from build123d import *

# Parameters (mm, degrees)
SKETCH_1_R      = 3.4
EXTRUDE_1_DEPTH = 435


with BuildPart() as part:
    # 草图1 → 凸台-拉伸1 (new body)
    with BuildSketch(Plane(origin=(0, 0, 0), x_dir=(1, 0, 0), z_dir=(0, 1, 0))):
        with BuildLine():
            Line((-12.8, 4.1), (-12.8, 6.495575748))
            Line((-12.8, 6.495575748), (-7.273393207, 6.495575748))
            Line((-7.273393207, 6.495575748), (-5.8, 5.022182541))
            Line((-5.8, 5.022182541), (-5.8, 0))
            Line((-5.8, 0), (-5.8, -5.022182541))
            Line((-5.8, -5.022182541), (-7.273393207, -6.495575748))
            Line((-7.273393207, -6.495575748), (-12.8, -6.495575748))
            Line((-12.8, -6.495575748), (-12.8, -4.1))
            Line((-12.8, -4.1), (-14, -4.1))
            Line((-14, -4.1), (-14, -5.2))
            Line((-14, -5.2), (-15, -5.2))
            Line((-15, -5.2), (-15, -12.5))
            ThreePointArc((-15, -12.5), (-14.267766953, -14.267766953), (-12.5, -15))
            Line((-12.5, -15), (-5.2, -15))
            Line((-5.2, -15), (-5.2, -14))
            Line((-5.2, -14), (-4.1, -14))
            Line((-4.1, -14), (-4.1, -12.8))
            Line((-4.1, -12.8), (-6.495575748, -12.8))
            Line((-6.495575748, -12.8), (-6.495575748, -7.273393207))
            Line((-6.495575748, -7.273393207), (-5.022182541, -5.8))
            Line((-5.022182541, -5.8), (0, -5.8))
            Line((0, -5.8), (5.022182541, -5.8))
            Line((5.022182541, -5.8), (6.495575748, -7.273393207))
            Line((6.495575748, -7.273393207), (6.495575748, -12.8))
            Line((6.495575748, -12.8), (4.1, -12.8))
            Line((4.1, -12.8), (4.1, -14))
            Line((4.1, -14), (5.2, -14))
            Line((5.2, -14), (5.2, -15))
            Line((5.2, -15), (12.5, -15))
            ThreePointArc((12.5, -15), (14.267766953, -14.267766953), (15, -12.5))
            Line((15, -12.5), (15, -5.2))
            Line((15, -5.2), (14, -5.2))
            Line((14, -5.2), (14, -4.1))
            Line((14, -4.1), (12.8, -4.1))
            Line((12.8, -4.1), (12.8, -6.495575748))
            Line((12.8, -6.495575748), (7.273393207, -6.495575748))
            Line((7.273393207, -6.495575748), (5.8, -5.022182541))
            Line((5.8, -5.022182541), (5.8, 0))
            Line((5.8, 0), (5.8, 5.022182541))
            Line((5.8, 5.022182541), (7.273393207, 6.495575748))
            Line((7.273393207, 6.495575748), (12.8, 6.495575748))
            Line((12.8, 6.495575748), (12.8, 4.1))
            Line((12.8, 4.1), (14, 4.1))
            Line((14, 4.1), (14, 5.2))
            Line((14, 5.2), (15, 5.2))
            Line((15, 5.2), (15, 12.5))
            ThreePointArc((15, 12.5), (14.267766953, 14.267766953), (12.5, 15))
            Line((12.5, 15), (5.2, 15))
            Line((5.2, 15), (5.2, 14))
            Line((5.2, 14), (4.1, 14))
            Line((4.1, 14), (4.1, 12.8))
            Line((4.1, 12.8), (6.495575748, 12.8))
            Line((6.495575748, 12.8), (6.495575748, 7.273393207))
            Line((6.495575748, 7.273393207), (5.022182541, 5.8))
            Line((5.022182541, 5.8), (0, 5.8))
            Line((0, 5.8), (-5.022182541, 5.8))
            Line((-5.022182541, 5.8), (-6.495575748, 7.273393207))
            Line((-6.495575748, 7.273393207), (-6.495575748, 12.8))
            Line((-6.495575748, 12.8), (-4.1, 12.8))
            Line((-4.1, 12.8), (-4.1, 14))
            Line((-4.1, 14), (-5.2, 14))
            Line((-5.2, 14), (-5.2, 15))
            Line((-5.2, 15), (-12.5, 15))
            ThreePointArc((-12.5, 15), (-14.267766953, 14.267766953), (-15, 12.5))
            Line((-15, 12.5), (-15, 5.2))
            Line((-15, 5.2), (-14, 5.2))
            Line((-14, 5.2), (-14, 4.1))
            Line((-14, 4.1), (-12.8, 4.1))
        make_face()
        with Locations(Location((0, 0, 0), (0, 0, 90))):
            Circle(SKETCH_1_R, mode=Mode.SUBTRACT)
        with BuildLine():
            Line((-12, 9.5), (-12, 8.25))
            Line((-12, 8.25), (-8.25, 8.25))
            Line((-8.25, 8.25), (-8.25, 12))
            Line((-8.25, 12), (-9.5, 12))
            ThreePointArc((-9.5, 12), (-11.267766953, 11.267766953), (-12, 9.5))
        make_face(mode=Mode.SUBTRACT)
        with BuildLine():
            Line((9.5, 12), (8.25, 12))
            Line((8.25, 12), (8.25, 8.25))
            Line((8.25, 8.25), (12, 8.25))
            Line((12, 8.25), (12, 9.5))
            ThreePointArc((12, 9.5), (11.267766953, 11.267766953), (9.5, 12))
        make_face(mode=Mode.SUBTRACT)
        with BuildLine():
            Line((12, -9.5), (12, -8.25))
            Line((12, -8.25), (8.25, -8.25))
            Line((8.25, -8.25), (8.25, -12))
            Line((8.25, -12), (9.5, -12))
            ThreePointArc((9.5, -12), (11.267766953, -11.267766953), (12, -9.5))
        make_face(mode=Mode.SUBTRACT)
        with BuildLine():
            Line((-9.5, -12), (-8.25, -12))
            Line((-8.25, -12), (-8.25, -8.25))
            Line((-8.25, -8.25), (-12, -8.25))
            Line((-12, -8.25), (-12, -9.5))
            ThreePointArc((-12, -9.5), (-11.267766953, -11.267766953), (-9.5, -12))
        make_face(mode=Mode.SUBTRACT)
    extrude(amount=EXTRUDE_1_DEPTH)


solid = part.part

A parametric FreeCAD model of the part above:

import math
import FreeCAD as App
import Part
import Sketcher
Q = App.Units.Quantity

doc = App.newDocument("Part")
body = doc.addObject("PartDesign::Body", "Body")

sketch1 = body.newObject("Sketcher::SketchObject", "Sketch")
sketch1.AttachmentSupport = (doc.getObject("XZ_Plane"), [""])
sketch1.MapMode = "FlatFace"
sketch1.addGeometry([
    Part.LineSegment(App.Vector(-12.8, -4.1, 0), App.Vector(-12.8, -6.5, 0)),
    Part.LineSegment(App.Vector(-12.8, -6.5, 0), App.Vector(-7.3, -6.5, 0)),
    Part.LineSegment(App.Vector(-7.3, -6.5, 0), App.Vector(-5.8, -5, 0)),
    Part.LineSegment(App.Vector(-5.8, -5, 0), App.Vector(-5.8, 5, 0)),
    Part.LineSegment(App.Vector(-5.8, 5, 0), App.Vector(-7.3, 6.5, 0)),
    Part.LineSegment(App.Vector(-7.3, 6.5, 0), App.Vector(-12.8, 6.5, 0)),
    Part.LineSegment(App.Vector(-12.8, 6.5, 0), App.Vector(-12.8, 4.1, 0)),
    Part.LineSegment(App.Vector(-12.8, 4.1, 0), App.Vector(-14, 4.1, 0)),
    Part.LineSegment(App.Vector(-14, 4.1, 0), App.Vector(-14, 5.2, 0)),
    Part.LineSegment(App.Vector(-14, 5.2, 0), App.Vector(-15, 5.2, 0)),
    Part.LineSegment(App.Vector(-15, 5.2, 0), App.Vector(-15, 12.5, 0)),
    Part.ArcOfCircle(Part.Circle(App.Vector(-12.5, 12.5, 0), App.Vector(0, 0, 1), 2.5), math.radians(90), math.radians(180)),
    Part.LineSegment(App.Vector(-12.5, 15, 0), App.Vector(-5.2, 15, 0)),
    Part.LineSegment(App.Vector(-5.2, 15, 0), App.Vector(-5.2, 14, 0)),
    Part.LineSegment(App.Vector(-5.2, 14, 0), App.Vector(-4.1, 14, 0)),
    Part.LineSegment(App.Vector(-4.1, 14, 0), App.Vector(-4.1, 12.8, 0)),
    Part.LineSegment(App.Vector(-4.1, 12.8, 0), App.Vector(-6.5, 12.8, 0)),
    Part.LineSegment(App.Vector(-6.5, 12.8, 0), App.Vector(-6.5, 7.3, 0)),
    Part.LineSegment(App.Vector(-6.5, 7.3, 0), App.Vector(-5, 5.8, 0)),
    Part.LineSegment(App.Vector(-5, 5.8, 0), App.Vector(5, 5.8, 0)),
    Part.LineSegment(App.Vector(5, 5.8, 0), App.Vector(6.5, 7.3, 0)),
    Part.LineSegment(App.Vector(6.5, 7.3, 0), App.Vector(6.5, 12.8, 0)),
    Part.LineSegment(App.Vector(6.5, 12.8, 0), App.Vector(4.1, 12.8, 0)),
    Part.LineSegment(App.Vector(4.1, 12.8, 0), App.Vector(4.1, 14, 0)),
    Part.LineSegment(App.Vector(4.1, 14, 0), App.Vector(5.2, 14, 0)),
    Part.LineSegment(App.Vector(5.2, 14, 0), App.Vector(5.2, 15, 0)),
    Part.LineSegment(App.Vector(5.2, 15, 0), App.Vector(12.5, 15, 0)),
    Part.ArcOfCircle(Part.Circle(App.Vector(12.5, 12.5, 0), App.Vector(0, 0, 1), 2.5), math.radians(0), math.radians(90)),
    Part.LineSegment(App.Vector(15, 12.5, 0), App.Vector(15, 5.2, 0)),
    Part.LineSegment(App.Vector(15, 5.2, 0), App.Vector(14, 5.2, 0)),
    Part.LineSegment(App.Vector(14, 5.2, 0), App.Vector(14, 4.1, 0)),
    Part.LineSegment(App.Vector(14, 4.1, 0), App.Vector(12.8, 4.1, 0)),
    Part.LineSegment(App.Vector(12.8, 4.1, 0), App.Vector(12.8, 6.5, 0)),
    Part.LineSegment(App.Vector(12.8, 6.5, 0), App.Vector(7.3, 6.5, 0)),
    Part.LineSegment(App.Vector(7.3, 6.5, 0), App.Vector(5.8, 5, 0)),
    Part.LineSegment(App.Vector(5.8, 5, 0), App.Vector(5.8, -5, 0)),
    Part.LineSegment(App.Vector(5.8, -5, 0), App.Vector(7.3, -6.5, 0)),
    Part.LineSegment(App.Vector(7.3, -6.5, 0), App.Vector(12.8, -6.5, 0)),
    Part.LineSegment(App.Vector(12.8, -6.5, 0), App.Vector(12.8, -4.1, 0)),
    Part.LineSegment(App.Vector(12.8, -4.1, 0), App.Vector(14, -4.1, 0)),
    Part.LineSegment(App.Vector(14, -4.1, 0), App.Vector(14, -5.2, 0)),
    Part.LineSegment(App.Vector(14, -5.2, 0), App.Vector(15, -5.2, 0)),
    Part.LineSegment(App.Vector(15, -5.2, 0), App.Vector(15, -12.5, 0)),
    Part.ArcOfCircle(Part.Circle(App.Vector(12.5, -12.5, 0), App.Vector(0, 0, 1), 2.5), math.radians(-90), math.radians(0)),
    Part.LineSegment(App.Vector(12.5, -15, 0), App.Vector(5.2, -15, 0)),
    Part.LineSegment(App.Vector(5.2, -15, 0), App.Vector(5.2, -14, 0)),
    Part.LineSegment(App.Vector(5.2, -14, 0), App.Vector(4.1, -14, 0)),
    Part.LineSegment(App.Vector(4.1, -14, 0), App.Vector(4.1, -12.8, 0)),
    Part.LineSegment(App.Vector(4.1, -12.8, 0), App.Vector(6.5, -12.8, 0)),
    Part.LineSegment(App.Vector(6.5, -12.8, 0), App.Vector(6.5, -7.3, 0)),
    Part.LineSegment(App.Vector(6.5, -7.3, 0), App.Vector(5, -5.8, 0)),
    Part.LineSegment(App.Vector(5, -5.8, 0), App.Vector(-5, -5.8, 0)),
    Part.LineSegment(App.Vector(-5, -5.8, 0), App.Vector(-6.5, -7.3, 0)),
    Part.LineSegment(App.Vector(-6.5, -7.3, 0), App.Vector(-6.5, -12.8, 0)),
    Part.LineSegment(App.Vector(-6.5, -12.8, 0), App.Vector(-4.1, -12.8, 0)),
    Part.LineSegment(App.Vector(-4.1, -12.8, 0), App.Vector(-4.1, -14, 0)),
    Part.LineSegment(App.Vector(-4.1, -14, 0), App.Vector(-5.2, -14, 0)),
    Part.LineSegment(App.Vector(-5.2, -14, 0), App.Vector(-5.2, -15, 0)),
    Part.LineSegment(App.Vector(-5.2, -15, 0), App.Vector(-12.5, -15, 0)),
    Part.ArcOfCircle(Part.Circle(App.Vector(-12.5, -12.5, 0), App.Vector(0, 0, 1), 2.5), math.radians(180), math.radians(270)),
    Part.LineSegment(App.Vector(-15, -12.5, 0), App.Vector(-15, -5.2, 0)),
    Part.LineSegment(App.Vector(-15, -5.2, 0), App.Vector(-14, -5.2, 0)),
    Part.LineSegment(App.Vector(-14, -5.2, 0), App.Vector(-14, -4.1, 0)),
    Part.LineSegment(App.Vector(-14, -4.1, 0), App.Vector(-12.8, -4.1, 0)),
    Part.LineSegment(App.Vector(-8.2, 12, 0), App.Vector(-9.5, 12, 0)),
    Part.ArcOfCircle(Part.Circle(App.Vector(-9.5, 9.5, 0), App.Vector(0, 0, 1), 2.5), math.radians(90), math.radians(180)),
    Part.LineSegment(App.Vector(-12, 9.5, 0), App.Vector(-12, 8.2, 0)),
    Part.LineSegment(App.Vector(-12, 8.2, 0), App.Vector(-8.2, 8.2, 0)),
    Part.LineSegment(App.Vector(-8.2, 8.2, 0), App.Vector(-8.2, 12, 0)),
    Part.LineSegment(App.Vector(12, 8.2, 0), App.Vector(12, 9.5, 0)),
    Part.ArcOfCircle(Part.Circle(App.Vector(9.5, 9.5, 0), App.Vector(0, 0, 1), 2.5), math.radians(0), math.radians(90)),
    Part.LineSegment(App.Vector(9.5, 12, 0), App.Vector(8.2, 12, 0)),
    Part.LineSegment(App.Vector(8.2, 12, 0), App.Vector(8.2, 8.2, 0)),
    Part.LineSegment(App.Vector(8.2, 8.2, 0), App.Vector(12, 8.2, 0)),
    Part.LineSegment(App.Vector(-12, -8.2, 0), App.Vector(-12, -9.5, 0)),
    Part.ArcOfCircle(Part.Circle(App.Vector(-9.5, -9.5, 0), App.Vector(0, 0, 1), 2.5), math.radians(180), math.radians(270)),
    Part.LineSegment(App.Vector(-9.5, -12, 0), App.Vector(-8.2, -12, 0)),
    Part.LineSegment(App.Vector(-8.2, -12, 0), App.Vector(-8.2, -8.2, 0)),
    Part.LineSegment(App.Vector(-8.2, -8.2, 0), App.Vector(-12, -8.2, 0)),
    Part.Circle(App.Vector(0, 0, 0), App.Vector(0, 0, 1), 3.4),
    Part.LineSegment(App.Vector(8.2, -12, 0), App.Vector(9.5, -12, 0)),
    Part.ArcOfCircle(Part.Circle(App.Vector(9.5, -9.5, 0), App.Vector(0, 0, 1), 2.5), math.radians(-90), math.radians(0)),
    Part.LineSegment(App.Vector(12, -9.5, 0), App.Vector(12, -8.2, 0)),
    Part.LineSegment(App.Vector(12, -8.2, 0), App.Vector(8.2, -8.2, 0)),
    Part.LineSegment(App.Vector(8.2, -8.2, 0), App.Vector(8.2, -12, 0)),
], False)
sketch1.addConstraint([
    Sketcher.Constraint("Coincident", 0, 2, 1, 1),
    Sketcher.Constraint("Coincident", 1, 2, 2, 1),
    Sketcher.Constraint("Coincident", 2, 2, 3, 1),
    Sketcher.Constraint("Coincident", 3, 2, 4, 1),
    Sketcher.Constraint("Coincident", 4, 2, 5, 1),
    Sketcher.Constraint("Coincident", 5, 2, 6, 1),
    Sketcher.Constraint("Coincident", 6, 2, 7, 1),
    Sketcher.Constraint("Coincident", 7, 2, 8, 1),
    Sketcher.Constraint("Coincident", 8, 2, 9, 1),
    Sketcher.Constraint("Coincident", 9, 2, 10, 1),
    Sketcher.Constraint("Tangent", 10, 2, 11, 2),
    Sketcher.Constraint("Tangent", 11, 1, 12, 1),
    Sketcher.Constraint("Coincident", 12, 2, 13, 1),
    Sketcher.Constraint("Coincident", 13, 2, 14, 1),
    Sketcher.Constraint("Coincident", 14, 2, 15, 1),
    Sketcher.Constraint("Coincident", 15, 2, 16, 1),
    Sketcher.Constraint("Coincident", 16, 2, 17, 1),
    Sketcher.Constraint("Coincident", 17, 2, 18, 1),
    Sketcher.Constraint("Coincident", 18, 2, 19, 1),
    Sketcher.Constraint("Coincident", 19, 2, 20, 1),
    Sketcher.Constraint("Coincident", 20, 2, 21, 1),
    Sketcher.Constraint("Coincident", 21, 2, 22, 1),
    Sketcher.Constraint("Coincident", 22, 2, 23, 1),
    Sketcher.Constraint("Coincident", 23, 2, 24, 1),
    Sketcher.Constraint("Coincident", 24, 2, 25, 1),
    Sketcher.Constraint("Coincident", 25, 2, 26, 1),
    Sketcher.Constraint("Tangent", 26, 2, 27, 2),
    Sketcher.Constraint("Tangent", 27, 1, 28, 1),
    Sketcher.Constraint("Coincident", 28, 2, 29, 1),
    Sketcher.Constraint("Coincident", 29, 2, 30, 1),
    Sketcher.Constraint("Coincident", 30, 2, 31, 1),
    Sketcher.Constraint("Coincident", 31, 2, 32, 1),
    Sketcher.Constraint("Coincident", 32, 2, 33, 1),
    Sketcher.Constraint("Coincident", 33, 2, 34, 1),
    Sketcher.Constraint("Coincident", 34, 2, 35, 1),
    Sketcher.Constraint("Coincident", 35, 2, 36, 1),
    Sketcher.Constraint("Coincident", 36, 2, 37, 1),
    Sketcher.Constraint("Coincident", 37, 2, 38, 1),
    Sketcher.Constraint("Coincident", 38, 2, 39, 1),
    Sketcher.Constraint("Coincident", 39, 2, 40, 1),
    Sketcher.Constraint("Coincident", 40, 2, 41, 1),
    Sketcher.Constraint("Coincident", 41, 2, 42, 1),
    Sketcher.Constraint("Tangent", 42, 2, 43, 2),
    Sketcher.Constraint("Tangent", 43, 1, 44, 1),
    Sketcher.Constraint("Coincident", 44, 2, 45, 1),
    Sketcher.Constraint("Coincident", 45, 2, 46, 1),
    Sketcher.Constraint("Coincident", 46, 2, 47, 1),
    Sketcher.Constraint("Coincident", 47, 2, 48, 1),
    Sketcher.Constraint("Coincident", 48, 2, 49, 1),
    Sketcher.Constraint("Coincident", 49, 2, 50, 1),
    Sketcher.Constraint("Coincident", 50, 2, 51, 1),
    Sketcher.Constraint("Coincident", 51, 2, 52, 1),
    Sketcher.Constraint("Coincident", 52, 2, 53, 1),
    Sketcher.Constraint("Coincident", 53, 2, 54, 1),
    Sketcher.Constraint("Coincident", 54, 2, 55, 1),
    Sketcher.Constraint("Coincident", 55, 2, 56, 1),
    Sketcher.Constraint("Coincident", 56, 2, 57, 1),
    Sketcher.Constraint("Coincident", 57, 2, 58, 1),
    Sketcher.Constraint("Tangent", 58, 2, 59, 2),
    Sketcher.Constraint("Tangent", 59, 1, 60, 1),
    Sketcher.Constraint("Coincident", 60, 2, 61, 1),
    Sketcher.Constraint("Coincident", 61, 2, 62, 1),
    Sketcher.Constraint("Coincident", 62, 2, 63, 1),
    Sketcher.Constraint("Coincident", 63, 2, 0, 1),
    Sketcher.Constraint("Tangent", 64, 2, 65, 1),
    Sketcher.Constraint("Tangent", 65, 2, 66, 1),
    Sketcher.Constraint("Coincident", 66, 2, 67, 1),
    Sketcher.Constraint("Coincident", 67, 2, 68, 1),
    Sketcher.Constraint("Coincident", 68, 2, 64, 1),
    Sketcher.Constraint("Tangent", 69, 2, 70, 1),
    Sketcher.Constraint("Tangent", 70, 2, 71, 1),
    Sketcher.Constraint("Coincident", 71, 2, 72, 1),
    Sketcher.Constraint("Coincident", 72, 2, 73, 1),
    Sketcher.Constraint("Coincident", 73, 2, 69, 1),
    Sketcher.Constraint("Tangent", 74, 2, 75, 1),
    Sketcher.Constraint("Tangent", 75, 2, 76, 1),
    Sketcher.Constraint("Coincident", 76, 2, 77, 1),
    Sketcher.Constraint("Coincident", 77, 2, 78, 1),
    Sketcher.Constraint("Coincident", 78, 2, 74, 1),
    Sketcher.Constraint("Tangent", 80, 2, 81, 1),
    Sketcher.Constraint("Tangent", 81, 2, 82, 1),
    Sketcher.Constraint("Coincident", 82, 2, 83, 1),
    Sketcher.Constraint("Coincident", 83, 2, 84, 1),
    Sketcher.Constraint("Coincident", 84, 2, 80, 1),
    Sketcher.Constraint("Vertical", 0),
    Sketcher.Constraint("Horizontal", 1),
    Sketcher.Constraint("Vertical", 3),
    Sketcher.Constraint("Horizontal", 5),
    Sketcher.Constraint("Vertical", 6),
    Sketcher.Constraint("Horizontal", 7),
    Sketcher.Constraint("Vertical", 8),
    Sketcher.Constraint("Horizontal", 9),
    Sketcher.Constraint("Vertical", 10),
    Sketcher.Constraint("Horizontal", 12),
    Sketcher.Constraint("Vertical", 13),
    Sketcher.Constraint("Horizontal", 14),
    Sketcher.Constraint("Vertical", 15),
    Sketcher.Constraint("Horizontal", 16),
    Sketcher.Constraint("Vertical", 17),
    Sketcher.Constraint("Horizontal", 19),
    Sketcher.Constraint("Vertical", 21),
    Sketcher.Constraint("Horizontal", 22),
    Sketcher.Constraint("Vertical", 23),
    Sketcher.Constraint("Horizontal", 24),
    Sketcher.Constraint("Vertical", 25),
    Sketcher.Constraint("Horizontal", 26),
    Sketcher.Constraint("Vertical", 28),
    Sketcher.Constraint("Horizontal", 29),
    Sketcher.Constraint("Vertical", 30),
    Sketcher.Constraint("Horizontal", 31),
    Sketcher.Constraint("Vertical", 32),
    Sketcher.Constraint("Horizontal", 33),
    Sketcher.Constraint("Vertical", 35),
    Sketcher.Constraint("Horizontal", 37),
    Sketcher.Constraint("Vertical", 38),
    Sketcher.Constraint("Horizontal", 39),
    Sketcher.Constraint("Vertical", 40),
    Sketcher.Constraint("Horizontal", 41),
    Sketcher.Constraint("Vertical", 42),
    Sketcher.Constraint("Horizontal", 44),
    Sketcher.Constraint("Vertical", 45),
    Sketcher.Constraint("Horizontal", 46),
    Sketcher.Constraint("Vertical", 47),
    Sketcher.Constraint("Horizontal", 48),
    Sketcher.Constraint("Vertical", 49),
    Sketcher.Constraint("Horizontal", 51),
    Sketcher.Constraint("Vertical", 53),
    Sketcher.Constraint("Horizontal", 54),
    Sketcher.Constraint("Vertical", 55),
    Sketcher.Constraint("Horizontal", 56),
    Sketcher.Constraint("Vertical", 57),
    Sketcher.Constraint("Horizontal", 58),
    Sketcher.Constraint("Vertical", 60),
    Sketcher.Constraint("Horizontal", 61),
    Sketcher.Constraint("Vertical", 62),
    Sketcher.Constraint("Horizontal", 63),
    Sketcher.Constraint("Horizontal", 64),
    Sketcher.Constraint("Vertical", 66),
    Sketcher.Constraint("Horizontal", 67),
    Sketcher.Constraint("Vertical", 68),
    Sketcher.Constraint("Vertical", 69),
    Sketcher.Constraint("Horizontal", 71),
    Sketcher.Constraint("Vertical", 72),
    Sketcher.Constraint("Horizontal", 73),
    Sketcher.Constraint("Vertical", 74),
    Sketcher.Constraint("Horizontal", 76),
    Sketcher.Constraint("Vertical", 77),
    Sketcher.Constraint("Horizontal", 78),
    Sketcher.Constraint("Horizontal", 80),
    Sketcher.Constraint("Vertical", 82),
    Sketcher.Constraint("Horizontal", 83),
    Sketcher.Constraint("Vertical", 84),
    Sketcher.Constraint("Coincident", 79, 3, -1, 1),
    Sketcher.Constraint("Equal", 11, 27),
    Sketcher.Constraint("Equal", 27, 43),
    Sketcher.Constraint("Equal", 43, 59),
    Sketcher.Constraint("Equal", 59, 65),
    Sketcher.Constraint("Equal", 65, 70),
    Sketcher.Constraint("Equal", 70, 75),
    Sketcher.Constraint("Equal", 75, 81),
    Sketcher.Constraint("Symmetric", 11, 3, 43, 3, -1, 1),
    Sketcher.Constraint("Symmetric", 27, 3, 59, 3, -1, 1),
    Sketcher.Constraint("Symmetric", 70, 3, 75, 3, -1, 1),
    Sketcher.Constraint("Symmetric", 65, 3, 81, 3, -1, 1),
    Sketcher.Constraint("Symmetric", 0, 2, 32, 2, -1, 1),
    Sketcher.Constraint("Symmetric", 2, 2, 34, 2, -1, 1),
    Sketcher.Constraint("Symmetric", 4, 2, 36, 2, -1, 1),
    Sketcher.Constraint("Symmetric", 6, 2, 38, 2, -1, 1),
    Sketcher.Constraint("Symmetric", 8, 2, 40, 2, -1, 1),
    Sketcher.Constraint("Symmetric", 13, 2, 45, 2, -1, 1),
    Sketcher.Constraint("Symmetric", 15, 2, 47, 2, -1, 1),
    Sketcher.Constraint("Symmetric", 17, 2, 49, 2, -1, 1),
    Sketcher.Constraint("Symmetric", 18, 2, 50, 2, -1, 1),
    Sketcher.Constraint("Symmetric", 20, 2, 52, 2, -1, 1),
    Sketcher.Constraint("Symmetric", 22, 2, 54, 2, -1, 1),
    Sketcher.Constraint("Symmetric", 24, 2, 56, 2, -1, 1),
    Sketcher.Constraint("Symmetric", 29, 2, 61, 2, -1, 1),
    Sketcher.Constraint("Symmetric", 72, 2, 77, 2, -1, 1),
    Sketcher.Constraint("Symmetric", 67, 2, 83, 2, -1, 1),
    Sketcher.Constraint("Symmetric", 11, 3, 27, 3, -2),
    Sketcher.Constraint("Symmetric", 65, 3, 70, 3, -2),
    Sketcher.Constraint("Symmetric", 17, 2, 20, 2, -2),
    Sketcher.Constraint("Symmetric", 15, 2, 22, 2, -2),
    Sketcher.Constraint("Symmetric", 13, 2, 24, 2, -2),
    Sketcher.Constraint("Symmetric", 8, 2, 29, 2, -2),
    Sketcher.Constraint("Symmetric", 6, 2, 31, 2, -2),
    Sketcher.Constraint("Symmetric", 4, 2, 33, 2, -2),
    Sketcher.Constraint("Symmetric", 67, 2, 72, 2, -2),
    Sketcher.Constraint("Perpendicular", 2, 4),
    Sketcher.Constraint("Parallel", 4, 18),
    Sketcher.Constraint("Perpendicular", 18, 20),
    Sketcher.Constraint("Parallel", 20, 34),
    Sketcher.Constraint("Perpendicular", 34, 36),
    Sketcher.Constraint("Perpendicular", 50, 52),
    Sketcher.Constraint("Horizontal", 3, 2, 34, 2),
    Sketcher.Constraint("Horizontal", 39, 2, 62, 2),
    Sketcher.Constraint("Equal", 54, 0),
    Sketcher.Constraint("Equal", 51, 3),
    Sketcher.Constraint("Equal", 56, 8),
    Sketcher.Constraint("Equal", 58, 10),
    Sketcher.Constraint("Equal", 61, 13),
    Sketcher.Constraint("Equal", 63, 15),
    Sketcher.Constraint("Equal", 37, 17),
    Sketcher.Constraint("Equal", 80, 66),
    Sketcher.Constraint("Equal", 4, 18),
    Sketcher.Constraint("Diameter", 79, Q("6.8 mm")),
    Sketcher.Constraint("Radius", 11, Q("2.5 mm")),
    Sketcher.Constraint("DistanceX", 9, 2, 9, 1, Q("1 mm")),
    Sketcher.Constraint("DistanceX", 7, 2, 7, 1, Q("1.2 mm")),
    Sketcher.Constraint("DistanceX", 12, 1, 12, 2, Q("7.3 mm")),
    Sketcher.Constraint("DistanceX", 14, 1, 14, 2, Q("1.1 mm")),
    Sketcher.Constraint("DistanceX", 7, 2, -1, 1, Q("14 mm")),
    Sketcher.Constraint("DistanceY", -1, 1, 64, 2, Q("12 mm")),
    Sketcher.Constraint("DistanceX", 65, 2, -1, 1, Q("12 mm")),
    Sketcher.Constraint("DistanceX", 64, 2, 64, 1, Q("1.25 mm")),
    Sketcher.Constraint("DistanceX", 2, 2, -1, 1, Q("5.8 mm")),
    Sketcher.Constraint("DistanceX", 1, 1, 1, 2, Q("5.526607 mm")),
    Sketcher.Constraint("DistanceX", 16, 2, 16, 1, Q("2.395576 mm")),
])
pad1 = body.newObject("PartDesign::Pad", "Pad")
pad1.Profile = sketch1
pad1.Length = 435
pad1.Reversed = True

doc.recompute()
